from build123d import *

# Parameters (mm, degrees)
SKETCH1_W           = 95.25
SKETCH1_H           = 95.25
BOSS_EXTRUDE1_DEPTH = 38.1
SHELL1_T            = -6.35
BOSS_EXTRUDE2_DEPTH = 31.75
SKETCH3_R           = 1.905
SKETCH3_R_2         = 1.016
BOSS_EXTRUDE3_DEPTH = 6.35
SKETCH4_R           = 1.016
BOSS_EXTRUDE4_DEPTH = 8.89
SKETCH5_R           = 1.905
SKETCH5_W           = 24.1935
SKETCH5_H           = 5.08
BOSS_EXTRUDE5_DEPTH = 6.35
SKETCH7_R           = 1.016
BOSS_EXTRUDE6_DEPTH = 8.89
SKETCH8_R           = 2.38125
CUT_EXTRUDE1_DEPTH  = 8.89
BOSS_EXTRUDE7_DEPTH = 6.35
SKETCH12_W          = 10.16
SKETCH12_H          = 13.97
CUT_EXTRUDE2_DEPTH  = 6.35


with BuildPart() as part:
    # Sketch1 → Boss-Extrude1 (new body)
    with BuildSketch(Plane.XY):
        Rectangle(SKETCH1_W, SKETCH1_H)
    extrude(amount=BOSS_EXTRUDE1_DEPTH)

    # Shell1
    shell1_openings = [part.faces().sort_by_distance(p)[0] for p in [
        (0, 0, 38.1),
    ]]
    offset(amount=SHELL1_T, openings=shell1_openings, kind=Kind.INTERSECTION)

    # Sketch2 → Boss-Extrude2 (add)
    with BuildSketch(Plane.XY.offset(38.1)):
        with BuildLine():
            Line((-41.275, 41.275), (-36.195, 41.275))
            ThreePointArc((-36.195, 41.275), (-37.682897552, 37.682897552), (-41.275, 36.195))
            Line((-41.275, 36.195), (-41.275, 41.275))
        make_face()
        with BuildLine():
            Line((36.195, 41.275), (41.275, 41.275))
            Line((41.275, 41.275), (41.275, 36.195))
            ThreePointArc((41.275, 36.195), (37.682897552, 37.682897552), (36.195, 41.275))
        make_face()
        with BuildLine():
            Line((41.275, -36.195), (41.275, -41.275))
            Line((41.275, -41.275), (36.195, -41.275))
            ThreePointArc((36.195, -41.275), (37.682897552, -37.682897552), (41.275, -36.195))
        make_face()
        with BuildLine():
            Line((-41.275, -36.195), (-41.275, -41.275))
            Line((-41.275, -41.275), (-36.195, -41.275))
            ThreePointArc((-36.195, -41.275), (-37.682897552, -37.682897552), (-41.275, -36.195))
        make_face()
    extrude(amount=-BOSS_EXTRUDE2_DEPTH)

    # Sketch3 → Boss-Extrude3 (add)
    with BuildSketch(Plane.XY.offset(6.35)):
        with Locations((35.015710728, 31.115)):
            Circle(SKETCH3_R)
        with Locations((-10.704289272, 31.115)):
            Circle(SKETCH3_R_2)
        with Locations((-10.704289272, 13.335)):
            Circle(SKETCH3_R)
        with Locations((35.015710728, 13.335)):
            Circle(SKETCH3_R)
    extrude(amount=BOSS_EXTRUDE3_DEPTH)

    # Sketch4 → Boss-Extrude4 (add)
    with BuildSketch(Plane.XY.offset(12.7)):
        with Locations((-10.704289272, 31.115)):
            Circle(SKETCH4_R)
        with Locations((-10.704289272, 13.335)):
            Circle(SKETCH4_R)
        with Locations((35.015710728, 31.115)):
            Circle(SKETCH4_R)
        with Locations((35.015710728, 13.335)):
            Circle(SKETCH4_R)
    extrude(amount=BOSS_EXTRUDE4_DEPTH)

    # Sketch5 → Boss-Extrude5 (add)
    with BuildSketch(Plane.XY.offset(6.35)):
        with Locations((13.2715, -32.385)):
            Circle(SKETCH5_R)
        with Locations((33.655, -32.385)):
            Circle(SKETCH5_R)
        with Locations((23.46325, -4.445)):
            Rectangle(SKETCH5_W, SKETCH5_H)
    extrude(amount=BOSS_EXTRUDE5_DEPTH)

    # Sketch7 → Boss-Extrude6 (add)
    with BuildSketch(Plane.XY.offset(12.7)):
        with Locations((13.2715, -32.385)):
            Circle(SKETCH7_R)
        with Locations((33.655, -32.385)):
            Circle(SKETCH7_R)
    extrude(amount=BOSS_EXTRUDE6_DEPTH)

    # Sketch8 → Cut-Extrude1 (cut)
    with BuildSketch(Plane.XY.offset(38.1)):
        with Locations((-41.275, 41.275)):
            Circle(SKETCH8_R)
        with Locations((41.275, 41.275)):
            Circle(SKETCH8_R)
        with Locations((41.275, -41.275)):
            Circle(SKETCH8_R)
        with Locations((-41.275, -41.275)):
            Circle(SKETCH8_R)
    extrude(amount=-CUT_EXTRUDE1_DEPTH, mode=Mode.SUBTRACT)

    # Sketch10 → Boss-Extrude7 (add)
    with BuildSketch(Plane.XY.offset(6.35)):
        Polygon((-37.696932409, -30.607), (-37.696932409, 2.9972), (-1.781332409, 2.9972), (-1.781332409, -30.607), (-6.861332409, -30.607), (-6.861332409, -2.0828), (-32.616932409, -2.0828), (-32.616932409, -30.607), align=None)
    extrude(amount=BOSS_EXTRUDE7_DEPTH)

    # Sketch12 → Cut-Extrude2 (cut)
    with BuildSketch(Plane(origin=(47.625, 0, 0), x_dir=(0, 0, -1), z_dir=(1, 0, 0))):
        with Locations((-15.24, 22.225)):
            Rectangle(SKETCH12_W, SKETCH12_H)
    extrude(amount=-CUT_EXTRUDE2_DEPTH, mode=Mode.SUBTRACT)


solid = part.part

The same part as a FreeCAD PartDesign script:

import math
import FreeCAD as App
import Part
import Sketcher

V = App.Vector
Q = App.Units.Quantity


def faces_at(feature, points):
    """Names of the faces that lie closest to the given points."""
    faces = feature.Shape.Faces
    near = lambda p: min(range(len(faces)), key=lambda i: faces[i].distToShape(Part.Vertex(*p))[0])
    return sorted({f"Face{near(p) + 1}" for p in points})


def add_polygon(sketch, points):
    """Adds a closed chain of lines whose ends are joined by coincident constraints."""
    first, n = sketch.GeometryCount, len(points)
    for a, b in zip(points, points[1:] + points[:1]):
        sketch.addGeometry(Part.LineSegment(App.Vector(*a, 0), App.Vector(*b, 0)), False)
    for i in range(n):
        sketch.addConstraint(Sketcher.Constraint("Coincident", first + i, 2, first + (i + 1) % n, 1))

doc = App.newDocument("Part")
body = doc.addObject("PartDesign::Body", "Body")

sketch1 = body.newObject("Sketcher::SketchObject", "Sketch")
sketch1.AttachmentSupport = (doc.getObject("XY_Plane"), [""])
sketch1.MapMode = "FlatFace"
add_polygon(sketch1, [(-48, 48), (-48, -48), (48, -48), (48, 48)])
sketch1.addConstraint([
    Sketcher.Constraint("Vertical", 0),
    Sketcher.Constraint("Horizontal", 1),
    Sketcher.Constraint("Vertical", 2),
    Sketcher.Constraint("Horizontal", 3),
    Sketcher.Constraint("Symmetric", 0, 2, 2, 2, -1, 1),
    Sketcher.Constraint("Equal", 3, 0),
    Sketcher.Constraint("DistanceX", 1, 1, 1, 2, Q("3.75 in")),
])
pad1 = body.newObject("PartDesign::Pad", "Pad")
pad1.Profile = sketch1
pad1.Length = Q("1.5 in")
doc.recompute()

thickness = body.newObject("PartDesign::Thickness", "Thickness")
thickness.Base = (pad1, faces_at(pad1, [(0, 0, 38.1)]))
thickness.Value = Q("0.25 in")
thickness.Reversed = True
thickness.Join = "Intersection"

sketch2 = body.newObject("Sketcher::SketchObject", "Sketch001")
sketch2.AttachmentSupport = (doc.getObject("XY_Plane"), [""])
sketch2.MapMode = "FlatFace"
sketch2.AttachmentOffset = App.Placement(V(0, 0, 1.5 * 25.4), App.Rotation())
sketch2.addGeometry([
    Part.LineSegment(V(-36, 41, 0), V(-41, 41, 0)),
    Part.LineSegment(V(-41, 41, 0), V(-41, 36, 0)),
    Part.ArcOfCircle(Part.Circle(V(-41, 41, 0), V(0, 0, 1), 5), math.radians(-90), math.radians(0)),
    Part.LineSegment(V(41, 41, 0), V(36, 41, 0)),
    Part.ArcOfCircle(Part.Circle(V(41, 41, 0), V(0, 0, 1), 5), math.radians(-180), math.radians(-90)),
    Part.LineSegment(V(41, 36, 0), V(41, 41, 0)),
    Part.LineSegment(V(41, -41, 0), V(41, -36, 0)),
    Part.ArcOfCircle(Part.Circle(V(41, -41, 0), V(0, 0, 1), 5), math.radians(90), math.radians(180)),
    Part.LineSegment(V(36, -41, 0), V(41, -41, 0)),
    Part.LineSegment(V(-41, -36, 0), V(-41, -41, 0)),
    Part.LineSegment(V(-41, -41, 0), V(-36, -41, 0)),
    Part.ArcOfCircle(Part.Circle(V(-41, -41, 0), V(0, 0, 1), 5), math.radians(0), math.radians(90)),
], False)
sketch2.addConstraint([
    Sketcher.Constraint("Coincident", 0, 2, 1, 1),
    Sketcher.Constraint("Coincident", 1, 2, 2, 1),
    Sketcher.Constraint("Coincident", 2, 2, 0, 1),
    Sketcher.Constraint("Coincident", 3, 2, 4, 1),
    Sketcher.Constraint("Coincident", 4, 2, 5, 1),
    Sketcher.Constraint("Coincident", 5, 2, 3, 1),
    Sketcher.Constraint("Coincident", 6, 2, 7, 1),
    Sketcher.Constraint("Coincident", 7, 2, 8, 1),
    Sketcher.Constraint("Coincident", 8, 2, 6, 1),
    Sketcher.Constraint("Coincident", 9, 2, 10, 1),
    Sketcher.Constraint("Coincident", 10, 2, 11, 1),
    Sketcher.Constraint("Coincident", 11, 2, 9, 1),
    Sketcher.Constraint("Horizontal", 0),
    Sketcher.Constraint("Vertical", 1),
    Sketcher.Constraint("Horizontal", 3),
    Sketcher.Constraint("Vertical", 5),
    Sketcher.Constraint("Vertical", 6),
    Sketcher.Constraint("Horizontal", 8),
    Sketcher.Constraint("Vertical", 9),
    Sketcher.Constraint("Horizontal", 10),
    Sketcher.Constraint("Coincident", 0, 2, 2, 3),
    Sketcher.Constraint("Coincident", 5, 2, 4, 3),
    Sketcher.Constraint("Coincident", 8, 2, 7, 3),
    Sketcher.Constraint("Coincident", 9, 2, 11, 3),
    Sketcher.Constraint("Equal", 2, 4),
    Sketcher.Constraint("Equal", 4, 7),
    Sketcher.Constraint("Equal", 7, 11),
    Sketcher.Constraint("Symmetric", 2, 3, 7, 3, -1, 1),
    Sketcher.Constraint("Symmetric", 4, 3, 11, 3, -1, 1),
    Sketcher.Constraint("Symmetric", 2, 3, 4, 3, -2),
    Sketcher.Constraint("Radius", 2, Q("0.2 in")),
    Sketcher.Constraint("DistanceX", 2, 3, 4, 3, Q("3.25 in")),
    Sketcher.Constraint("DistanceY", 7, 3, 4, 3, Q("3.25 in")),
])
pad2 = body.newObject("PartDesign::Pad", "Pad001")
pad2.Profile = sketch2
pad2.Length = Q("1.25 in")
pad2.Reversed = True

sketch3 = body.newObject("Sketcher::SketchObject", "Sketch002")
sketch3.AttachmentSupport = (doc.getObject("XY_Plane"), [""])
sketch3.MapMode = "FlatFace"
sketch3.AttachmentOffset = App.Placement(V(0, 0, 0.25 * 25.4), App.Rotation())
sketch3.addGeometry([
    Part.Circle(V(35, 31.1, 0), V(0, 0, 1), 1.9),
    Part.Circle(V(-10.7, 31.1, 0), V(0, 0, 1), 1),
    Part.Circle(V(-10.7, 13.3, 0), V(0, 0, 1), 1.9),
    Part.Circle(V(35, 13.3, 0), V(0, 0, 1), 1.9),
], False)
sketch3.addConstraint([
    Sketcher.Constraint("Equal", 0, 2),
    Sketcher.Constraint("Equal", 2, 3),
    Sketcher.Constraint("Horizontal", 0, 3, 1, 3),
    Sketcher.Constraint("Horizontal", 2, 3, 3, 3),
    Sketcher.Constraint("Vertical", 1, 3, 2, 3),
    Sketcher.Constraint("Vertical", 0, 3, 3, 3),
    Sketcher.Constraint("Diameter", 0, Q("0.15 in")),
    Sketcher.Constraint("Diameter", 1, Q("0.08 in")),
    Sketcher.Constraint("DistanceX", 1, 3, 0, 3, Q("1.8 in")),
    Sketcher.Constraint("DistanceY", 2, 3, 1, 3, Q("0.7 in")),
    Sketcher.Constraint("DistanceY", -1, 1, 0, 3, Q("1.225 in")),
    Sketcher.Constraint("DistanceX", -1, 1, 0, 3, 35.015711),
])
pad3 = body.newObject("PartDesign::Pad", "Pad002")
pad3.Profile = sketch3
pad3.Length = Q("0.25 in")

sketch4 = body.newObject("Sketcher::SketchObject", "Sketch003")
sketch4.AttachmentSupport = (doc.getObject("XY_Plane"), [""])
sketch4.MapMode = "FlatFace"
sketch4.AttachmentOffset = App.Placement(V(0, 0, 0.5 * 25.4), App.Rotation())
sketch4.addGeometry([
    Part.Circle(V(-10.7, 31.1, 0), V(0, 0, 1), 1),
    Part.Circle(V(-10.7, 13.3, 0), V(0, 0, 1), 1),
    Part.Circle(V(35, 31.1, 0), V(0, 0, 1), 1),
    Part.Circle(V(35, 13.3, 0), V(0, 0, 1), 1),
], False)
sketch4.addConstraint([
    Sketcher.Constraint("Equal", 0, 1),
    Sketcher.Constraint("Equal", 1, 2),
    Sketcher.Constraint("Equal", 2, 3),
    Sketcher.Constraint("Horizontal", 0, 3, 2, 3),
    Sketcher.Constraint("Horizontal", 1, 3, 3, 3),
    Sketcher.Constraint("Vertical", 0, 3, 1, 3),
    Sketcher.Constraint("Vertical", 2, 3, 3, 3),
    Sketcher.Constraint("Diameter", 0, Q("0.08 in")),
    Sketcher.Constraint("DistanceY", 1, 3, 0, 3, Q("0.7 in")),
    Sketcher.Constraint("DistanceX", 0, 3, 2, 3, Q("1.8 in")),
    Sketcher.Constraint("DistanceY", -1, 1, 0, 3, Q("1.225 in")),
    Sketcher.Constraint("DistanceX", 0, 3, -1, 1, 10.704289),
])
pad4 = body.newObject("PartDesign::Pad", "Pad003")
pad4.Profile = sketch4
pad4.Length = Q("0.35 in")

sketch5 = body.newObject("Sketcher::SketchObject", "Sketch004")
sketch5.AttachmentSupport = (doc.getObject("XY_Plane"), [""])
sketch5.MapMode = "FlatFace"
sketch5.AttachmentOffset = App.Placement(V(0, 0, 0.25 * 25.4), App.Rotation())
sketch5.addGeometry(Part.Circle(V(13.3, -32.4, 0), V(0, 0, 1), 1.9), False)
sketch5.addGeometry(Part.Circle(V(33.7, -32.4, 0), V(0, 0, 1), 1.9), False)
add_polygon(sketch5, [(11.4, -1.9), (11.4, -7), (35.6, -7), (35.6, -1.9)])
sketch5.addConstraint([
    Sketcher.Constraint("Vertical", 2),
    Sketcher.Constraint("Horizontal", 3),
    Sketcher.Constraint("Vertical", 4),
    Sketcher.Constraint("Horizontal", 5),
    Sketcher.Constraint("Equal", 0, 1),
    Sketcher.Constraint("Horizontal", 0, 3, 1, 3),
    Sketcher.Constraint("Diameter", 0, Q("0.15 in")),
    Sketcher.Constraint("DistanceY", 2, 2, 2, 1, Q("0.2 in")),
    Sketcher.Constraint("DistanceY", 0, 3, 2, 2, Q("1 in")),
    Sketcher.Constraint("DistanceX", -1, 1, 3, 2, Q("1.4 in")),
    Sketcher.Constraint("DistanceX", 3, 1, 3, 2, Q("0.9525 in")),
    Sketcher.Constraint("DistanceY", 0, 3, -1, 1, Q("1.275 in")),
    Sketcher.Constraint("DistanceX", -1, 1, 1, 3, Q("1.325 in")),
    Sketcher.Constraint("DistanceX", 2, 2, 0, 3, Q("0.075 in")),
])
pad5 = body.newObject("PartDesign::Pad", "Pad004")
pad5.Profile = sketch5
pad5.Length = Q("0.25 in")

sketch6 = body.newObject("Sketcher::SketchObject", "Sketch005")
sketch6.AttachmentSupport = (doc.getObject("XY_Plane"), [""])
sketch6.MapMode = "FlatFace"
sketch6.AttachmentOffset = App.Placement(V(0, 0, 0.5 * 25.4), App.Rotation())
sketch6.addGeometry([
    Part.Circle(V(13.3, -32.4, 0), V(0, 0, 1), 1),
    Part.Circle(V(33.7, -32.4, 0), V(0, 0, 1), 1),
], False)
sketch6.addConstraint([
    Sketcher.Constraint("Equal", 0, 1),
    Sketcher.Constraint("Horizontal", 0, 3, 1, 3),
    Sketcher.Constraint("Diameter", 0, Q("0.08 in")),
    Sketcher.Constraint("DistanceY", 0, 3, -1, 1, Q("1.275 in")),
    Sketcher.Constraint("DistanceX", -1, 1, 1, 3, Q("1.325 in")),
    Sketcher.Constraint("DistanceX", -1, 1, 0, 3, Q("0.5225 in")),
])
pad6 = body.newObject("PartDesign::Pad", "Pad005")
pad6.Profile = sketch6
pad6.Length = Q("0.35 in")

sketch7 = body.newObject("Sketcher::SketchObject", "Sketch006")
sketch7.AttachmentSupport = (doc.getObject("XY_Plane"), [""])
sketch7.MapMode = "FlatFace"
sketch7.AttachmentOffset = App.Placement(V(0, 0, 1.5 * 25.4), App.Rotation())
sketch7.addGeometry([
    Part.Circle(V(-41.3, 41.3, 0), V(0, 0, 1), 2.4),
    Part.Circle(V(41.3, 41.3, 0), V(0, 0, 1), 2.4),
    Part.Circle(V(41.3, -41.3, 0), V(0, 0, 1), 2.4),
    Part.Circle(V(-41.3, -41.3, 0), V(0, 0, 1), 2.4),
], False)
sketch7.addConstraint([
    Sketcher.Constraint("Equal", 0, 1),
    Sketcher.Constraint("Equal", 1, 2),
    Sketcher.Constraint("Equal", 2, 3),
    Sketcher.Constraint("Symmetric", 0, 3, 2, 3, -1, 1),
    Sketcher.Constraint("Symmetric", 1, 3, 3, 3, -1, 1),
    Sketcher.Constraint("Symmetric", 0, 3, 1, 3, -2),
    Sketcher.Constraint("Diameter", 0, Q("0.1875 in")),
    Sketcher.Constraint("DistanceX", 0, 3, 1, 3, Q("3.25 in")),
    Sketcher.Constraint("DistanceY", 2, 3, 1, 3, Q("3.25 in")),
])
pocket1 = body.newObject("PartDesign::Pocket", "Pocket")
pocket1.Profile = sketch7
pocket1.Length = Q("0.35 in")

sketch8 = body.newObject("Sketcher::SketchObject", "Sketch007")
sketch8.AttachmentSupport = (doc.getObject("XY_Plane"), [""])
sketch8.MapMode = "FlatFace"
sketch8.AttachmentOffset = App.Placement(V(0, 0, 0.25 * 25.4), App.Rotation())
add_polygon(sketch8, [(-38, 3), (-38, -31), (-33, -31), (-33, -2), (-7, -2), (-7, -31), (-2, -31), (-2, 3)])
sketch8.addConstraint([
    Sketcher.Constraint("Vertical", 0),
    Sketcher.Constraint("Horizontal", 1),
    Sketcher.Constraint("Vertical", 2),
    Sketcher.Constraint("Horizontal", 3),
    Sketcher.Constraint("Vertical", 4),
    Sketcher.Constraint("Horizontal", 5),
    Sketcher.Constraint("Vertical", 6),
    Sketcher.Constraint("Horizontal", 7),
    Sketcher.Constraint("Horizontal", 1, 2, 4, 2),
    Sketcher.Constraint("Equal", 1, 5),
    Sketcher.Constraint("DistanceX", 1, 1, 1, 2, Q("0.2 in")),
    Sketcher.Constraint("DistanceY", 3, 2, 6, 2, Q("0.2 in")),
    Sketcher.Constraint("DistanceX", 3, 1, 3, 2, Q("1.014 in")),
    Sketcher.Constraint("DistanceY", 0, 2, 0, 1, Q("1.323 in")),
    Sketcher.Constraint("DistanceY", 0, 2, -1, 1, Q("1.205 in")),
    Sketcher.Constraint("DistanceX", 0, 2, -1, 1, 37.696932),
])
pad7 = body.newObject("PartDesign::Pad", "Pad006")
pad7.Profile = sketch8
pad7.Length = Q("0.25 in")

sketch9 = body.newObject("Sketcher::SketchObject", "Sketch008")
sketch9.AttachmentSupport = (doc.getObject("YZ_Plane"), [""])
sketch9.MapMode = "FlatFace"
sketch9.AttachmentOffset = App.Placement(V(0, 0, 1.875 * 25.4), App.Rotation())
add_polygon(sketch9, [(29, 20), (15, 20), (15, 10), (29, 10)])
sketch9.addConstraint([
    Sketcher.Constraint("Horizontal", 0),
    Sketcher.Constraint("Vertical", 1),
    Sketcher.Constraint("Horizontal", 2),
    Sketcher.Constraint("Vertical", 3),
    Sketcher.Constraint("DistanceY", 1, 2, 1, 1, Q("0.4 in")),
    Sketcher.Constraint("DistanceX", 0, 2, 0, 1, Q("0.55 in")),
    Sketcher.Constraint("DistanceX", -1, 1, 0, 2, Q("0.6 in")),
    Sketcher.Constraint("DistanceY", -1, 1, 0, 2, Q("0.8 in")),
])
pocket2 = body.newObject("PartDesign::Pocket", "Pocket001")
pocket2.Profile = sketch9
pocket2.Length = Q("0.25 in")

doc.recompute()
